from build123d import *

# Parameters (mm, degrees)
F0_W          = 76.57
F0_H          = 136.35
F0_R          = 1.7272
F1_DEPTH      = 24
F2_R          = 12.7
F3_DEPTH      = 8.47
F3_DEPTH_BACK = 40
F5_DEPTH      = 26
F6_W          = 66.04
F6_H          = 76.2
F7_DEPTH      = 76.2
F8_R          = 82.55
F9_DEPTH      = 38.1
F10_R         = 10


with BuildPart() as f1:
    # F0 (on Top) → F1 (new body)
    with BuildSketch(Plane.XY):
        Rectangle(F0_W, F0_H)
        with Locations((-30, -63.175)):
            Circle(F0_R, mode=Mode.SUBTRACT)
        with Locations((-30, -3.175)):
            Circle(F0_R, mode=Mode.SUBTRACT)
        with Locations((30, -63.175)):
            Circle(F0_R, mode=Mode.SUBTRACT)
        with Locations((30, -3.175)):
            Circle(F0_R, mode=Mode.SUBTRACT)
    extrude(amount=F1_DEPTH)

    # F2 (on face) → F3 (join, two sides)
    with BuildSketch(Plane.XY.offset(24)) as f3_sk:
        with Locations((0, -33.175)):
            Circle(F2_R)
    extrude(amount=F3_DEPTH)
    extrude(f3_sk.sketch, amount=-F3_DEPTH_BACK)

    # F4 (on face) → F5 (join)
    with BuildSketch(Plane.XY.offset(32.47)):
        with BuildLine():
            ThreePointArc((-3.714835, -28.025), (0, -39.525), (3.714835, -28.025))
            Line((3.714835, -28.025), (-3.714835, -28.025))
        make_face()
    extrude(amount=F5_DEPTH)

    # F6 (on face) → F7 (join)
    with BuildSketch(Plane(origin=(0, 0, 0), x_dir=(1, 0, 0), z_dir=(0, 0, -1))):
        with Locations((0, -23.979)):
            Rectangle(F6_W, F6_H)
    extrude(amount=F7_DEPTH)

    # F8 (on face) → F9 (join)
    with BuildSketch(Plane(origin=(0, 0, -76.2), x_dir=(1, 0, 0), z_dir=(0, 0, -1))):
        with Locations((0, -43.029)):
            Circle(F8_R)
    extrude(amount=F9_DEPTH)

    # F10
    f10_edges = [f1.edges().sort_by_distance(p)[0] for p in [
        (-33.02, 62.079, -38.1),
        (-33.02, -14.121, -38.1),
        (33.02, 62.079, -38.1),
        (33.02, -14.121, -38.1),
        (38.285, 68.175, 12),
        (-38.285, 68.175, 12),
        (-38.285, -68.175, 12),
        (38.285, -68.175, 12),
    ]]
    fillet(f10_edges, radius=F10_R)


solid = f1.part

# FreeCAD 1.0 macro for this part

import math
import FreeCAD as App
import Part
import Sketcher
from FreeCAD import Vector
Q = App.Units.Quantity


def edges_at(feature, points):
    """Names of the edges that pass closest to the given points."""
    edges = feature.Shape.Edges
    near = lambda p: min(range(len(edges)), key=lambda i: edges[i].distToShape(Part.Vertex(*p))[0])
    return sorted({f"Edge{near(p) + 1}" for p in points})


def add_polygon(sketch, points):
    """Adds a closed chain of lines whose ends are joined by coincident constraints."""
    first, n = sketch.GeometryCount, len(points)
    for a, b in zip(points, points[1:] + points[:1]):
        sketch.addGeometry(Part.LineSegment(App.Vector(*a, 0), App.Vector(*b, 0)), False)
    for i in range(n):
        sketch.addConstraint(Sketcher.Constraint("Coincident", first + i, 2, first + (i + 1) % n, 1))

doc = App.newDocument("Part")
body = doc.addObject("PartDesign::Body", "Body")

# Sketch on XY plane
sketch1 = body.newObject("Sketcher::SketchObject", "Sketch")
sketch1.AttachmentSupport = (doc.getObject("XY_Plane"), [""])
sketch1.MapMode = "FlatFace"
add_polygon(sketch1, [(-38.3, 68.2), (-38.3, -68.2), (38.3, -68.2), (38.3, 68.2)])  # lines 0-3
sketch1.addGeometry(Part.Circle(Vector(-30, -63.2, 0), Vector(0, 0, 1), 1.7), False)  # 4
sketch1.addGeometry(Part.Circle(Vector(30, -63.2, 0), Vector(0, 0, 1), 1.7), False)  # 5
sketch1.addGeometry(Part.Circle(Vector(-30, -3.2, 0), Vector(0, 0, 1), 1.7), False)  # 6
sketch1.addGeometry(Part.Circle(Vector(30, -3.2, 0), Vector(0, 0, 1), 1.7), False)  # 7
sketch1.addConstraint([
    Sketcher.Constraint("Vertical", 0),
    Sketcher.Constraint("Horizontal", 1),
    Sketcher.Constraint("Vertical", 2),
    Sketcher.Constraint("Horizontal", 3),
    Sketcher.Constraint("Equal", 4, 5),
    Sketcher.Constraint("Equal", 5, 6),
    Sketcher.Constraint("Equal", 6, 7),
    Sketcher.Constraint("Symmetric", 0, 2, 2, 2, -1, 1),
    Sketcher.Constraint("Symmetric", 4, 3, 5, 3, -2),
    Sketcher.Constraint("Symmetric", 6, 3, 7, 3, -2),
    Sketcher.Constraint("Vertical", 4, 3, 6, 3),
    Sketcher.Constraint("Diameter", 4, Q("0.136 in")),
    Sketcher.Constraint("DistanceY", 6, 3, -1, 1, Q("0.125 in")),
    Sketcher.Constraint("DistanceX", 1, 1, 1, 2, 76.57),
    Sketcher.Constraint("DistanceY", 0, 2, 0, 1, 136.35),
    Sketcher.Constraint("DistanceX", 4, 3, -1, 1, 30.0),
    Sketcher.Constraint("DistanceY", 4, 3, -1, 1, 63.175),
])
pad1 = body.newObject("PartDesign::Pad", "Pad")
pad1.Profile = sketch1
pad1.Length = 24

# Sketch on XY plane
sketch2 = body.newObject("Sketcher::SketchObject", "Sketch001")
sketch2.AttachmentSupport = (doc.getObject("XY_Plane"), [""])
sketch2.MapMode = "FlatFace"
sketch2.AttachmentOffset = App.Placement(Vector(0, 0, 24), App.Rotation())
sketch2.addGeometry(Part.Circle(Vector(0, -33, 0), Vector(0, 0, 1), 13), False)
sketch2.addConstraint([
    Sketcher.Constraint("PointOnObject", 0, 3, -2),
    Sketcher.Constraint("Diameter", 0, Q("1 in")),
    Sketcher.Constraint("DistanceY", 0, 3, -1, 1, 33.175),
])
pad2 = body.newObject("PartDesign::Pad", "Pad001")
pad2.Profile = sketch2
pad2.Type = "TwoLengths"
pad2.Length = 8.47
pad2.Length2 = 40

# Sketch on XY plane
sketch3 = body.newObject("Sketcher::SketchObject", "Sketch002")
sketch3.AttachmentSupport = (doc.getObject("XY_Plane"), [""])
sketch3.MapMode = "FlatFace"
sketch3.AttachmentOffset = App.Placement(Vector(0, 0, 32.47), App.Rotation())
sketch3.addGeometry([
    Part.ArcOfCircle(Part.Circle(Vector(0, -33, 0), Vector(0, 0, 1), 6), math.radians(126), math.radians(414)),
    Part.LineSegment(Vector(4, -28, 0), Vector(-4, -28, 0)),
], False)
sketch3.addConstraint([
    Sketcher.Constraint("Coincident", 0, 1, 1, 2),
    Sketcher.Constraint("Coincident", 1, 1, 0, 2),
    Sketcher.Constraint("Horizontal", 1),
    Sketcher.Constraint("PointOnObject", 0, 3, -2),
    Sketcher.Constraint("Radius", 0, Q("0.25 in")),
    Sketcher.Constraint("DistanceX", 1, 2, 1, 1, 7.42967),
    Sketcher.Constraint("DistanceY", 0, 3, -1, 1, 33.175),
])
pad3 = body.newObject("PartDesign::Pad", "Pad002")
pad3.Profile = sketch3
pad3.Length = 26

# Sketch on XY plane
sketch4 = body.newObject("Sketcher::SketchObject", "Sketch003")
sketch4.AttachmentSupport = (doc.getObject("XY_Plane"), [""])
sketch4.MapMode = "FlatFace"
add_polygon(sketch4, [(-33, -14), (-33, 62), (33, 62), (33, -14)])  # lines 0-3
sketch4.addConstraint([
    Sketcher.Constraint("Vertical", 0),
    Sketcher.Constraint("Horizontal", 1),
    Sketcher.Constraint("Vertical", 2),
    Sketcher.Constraint("Horizontal", 3),
    Sketcher.Constraint("DistanceY", 0, 1, 0, 2, Q("3 in")),
    Sketcher.Constraint("DistanceX", 1, 1, 1, 2, Q("2.6 in")),
    Sketcher.Constraint("DistanceX", 0, 2, -1, 1, Q("1.3 in")),
    Sketcher.Constraint("DistanceY", -1, 1, 0, 2, 62.079),
])
pad4 = body.newObject("PartDesign::Pad", "Pad003")
pad4.Profile = sketch4
pad4.Length = Q("3 in")
pad4.Reversed = True

# Sketch on XY plane
sketch5 = body.newObject("Sketcher::SketchObject", "Sketch004")
sketch5.AttachmentSupport = (doc.getObject("XY_Plane"), [""])
sketch5.MapMode = "FlatFace"
sketch5.AttachmentOffset = App.Placement(Vector(0, 0, -3 * 25.4), App.Rotation())
sketch5.addGeometry(Part.Circle(Vector(0, 43, 0), Vector(0, 0, 1), 83), False)
sketch5.addConstraint([
    Sketcher.Constraint("PointOnObject", 0, 3, -2),
    Sketcher.Constraint("Diameter", 0, Q("6.5 in")),
    Sketcher.Constraint("DistanceY", -1, 1, 0, 3, 43.029),
])
pad5 = body.newObject("PartDesign::Pad", "Pad004")
pad5.Profile = sketch5
pad5.Length = Q("1.5 in")
pad5.Reversed = True
doc.recompute()

fillet = body.newObject("PartDesign::Fillet", "Fillet")
fillet.Base = (pad5, edges_at(pad5, [
    (-33.02, 62.079, -38.1),
    (-33.02, -14.121, -38.1),
    (33.02, 62.079, -38.1),
    (33.02, -14.121, -38.1),
    (38.285, 68.175, 12),
    (-38.285, 68.175, 12),
    (-38.285, -68.175, 12),
    (38.285, -68.175, 12),
]))
fillet.Radius = 10

doc.recompute()
